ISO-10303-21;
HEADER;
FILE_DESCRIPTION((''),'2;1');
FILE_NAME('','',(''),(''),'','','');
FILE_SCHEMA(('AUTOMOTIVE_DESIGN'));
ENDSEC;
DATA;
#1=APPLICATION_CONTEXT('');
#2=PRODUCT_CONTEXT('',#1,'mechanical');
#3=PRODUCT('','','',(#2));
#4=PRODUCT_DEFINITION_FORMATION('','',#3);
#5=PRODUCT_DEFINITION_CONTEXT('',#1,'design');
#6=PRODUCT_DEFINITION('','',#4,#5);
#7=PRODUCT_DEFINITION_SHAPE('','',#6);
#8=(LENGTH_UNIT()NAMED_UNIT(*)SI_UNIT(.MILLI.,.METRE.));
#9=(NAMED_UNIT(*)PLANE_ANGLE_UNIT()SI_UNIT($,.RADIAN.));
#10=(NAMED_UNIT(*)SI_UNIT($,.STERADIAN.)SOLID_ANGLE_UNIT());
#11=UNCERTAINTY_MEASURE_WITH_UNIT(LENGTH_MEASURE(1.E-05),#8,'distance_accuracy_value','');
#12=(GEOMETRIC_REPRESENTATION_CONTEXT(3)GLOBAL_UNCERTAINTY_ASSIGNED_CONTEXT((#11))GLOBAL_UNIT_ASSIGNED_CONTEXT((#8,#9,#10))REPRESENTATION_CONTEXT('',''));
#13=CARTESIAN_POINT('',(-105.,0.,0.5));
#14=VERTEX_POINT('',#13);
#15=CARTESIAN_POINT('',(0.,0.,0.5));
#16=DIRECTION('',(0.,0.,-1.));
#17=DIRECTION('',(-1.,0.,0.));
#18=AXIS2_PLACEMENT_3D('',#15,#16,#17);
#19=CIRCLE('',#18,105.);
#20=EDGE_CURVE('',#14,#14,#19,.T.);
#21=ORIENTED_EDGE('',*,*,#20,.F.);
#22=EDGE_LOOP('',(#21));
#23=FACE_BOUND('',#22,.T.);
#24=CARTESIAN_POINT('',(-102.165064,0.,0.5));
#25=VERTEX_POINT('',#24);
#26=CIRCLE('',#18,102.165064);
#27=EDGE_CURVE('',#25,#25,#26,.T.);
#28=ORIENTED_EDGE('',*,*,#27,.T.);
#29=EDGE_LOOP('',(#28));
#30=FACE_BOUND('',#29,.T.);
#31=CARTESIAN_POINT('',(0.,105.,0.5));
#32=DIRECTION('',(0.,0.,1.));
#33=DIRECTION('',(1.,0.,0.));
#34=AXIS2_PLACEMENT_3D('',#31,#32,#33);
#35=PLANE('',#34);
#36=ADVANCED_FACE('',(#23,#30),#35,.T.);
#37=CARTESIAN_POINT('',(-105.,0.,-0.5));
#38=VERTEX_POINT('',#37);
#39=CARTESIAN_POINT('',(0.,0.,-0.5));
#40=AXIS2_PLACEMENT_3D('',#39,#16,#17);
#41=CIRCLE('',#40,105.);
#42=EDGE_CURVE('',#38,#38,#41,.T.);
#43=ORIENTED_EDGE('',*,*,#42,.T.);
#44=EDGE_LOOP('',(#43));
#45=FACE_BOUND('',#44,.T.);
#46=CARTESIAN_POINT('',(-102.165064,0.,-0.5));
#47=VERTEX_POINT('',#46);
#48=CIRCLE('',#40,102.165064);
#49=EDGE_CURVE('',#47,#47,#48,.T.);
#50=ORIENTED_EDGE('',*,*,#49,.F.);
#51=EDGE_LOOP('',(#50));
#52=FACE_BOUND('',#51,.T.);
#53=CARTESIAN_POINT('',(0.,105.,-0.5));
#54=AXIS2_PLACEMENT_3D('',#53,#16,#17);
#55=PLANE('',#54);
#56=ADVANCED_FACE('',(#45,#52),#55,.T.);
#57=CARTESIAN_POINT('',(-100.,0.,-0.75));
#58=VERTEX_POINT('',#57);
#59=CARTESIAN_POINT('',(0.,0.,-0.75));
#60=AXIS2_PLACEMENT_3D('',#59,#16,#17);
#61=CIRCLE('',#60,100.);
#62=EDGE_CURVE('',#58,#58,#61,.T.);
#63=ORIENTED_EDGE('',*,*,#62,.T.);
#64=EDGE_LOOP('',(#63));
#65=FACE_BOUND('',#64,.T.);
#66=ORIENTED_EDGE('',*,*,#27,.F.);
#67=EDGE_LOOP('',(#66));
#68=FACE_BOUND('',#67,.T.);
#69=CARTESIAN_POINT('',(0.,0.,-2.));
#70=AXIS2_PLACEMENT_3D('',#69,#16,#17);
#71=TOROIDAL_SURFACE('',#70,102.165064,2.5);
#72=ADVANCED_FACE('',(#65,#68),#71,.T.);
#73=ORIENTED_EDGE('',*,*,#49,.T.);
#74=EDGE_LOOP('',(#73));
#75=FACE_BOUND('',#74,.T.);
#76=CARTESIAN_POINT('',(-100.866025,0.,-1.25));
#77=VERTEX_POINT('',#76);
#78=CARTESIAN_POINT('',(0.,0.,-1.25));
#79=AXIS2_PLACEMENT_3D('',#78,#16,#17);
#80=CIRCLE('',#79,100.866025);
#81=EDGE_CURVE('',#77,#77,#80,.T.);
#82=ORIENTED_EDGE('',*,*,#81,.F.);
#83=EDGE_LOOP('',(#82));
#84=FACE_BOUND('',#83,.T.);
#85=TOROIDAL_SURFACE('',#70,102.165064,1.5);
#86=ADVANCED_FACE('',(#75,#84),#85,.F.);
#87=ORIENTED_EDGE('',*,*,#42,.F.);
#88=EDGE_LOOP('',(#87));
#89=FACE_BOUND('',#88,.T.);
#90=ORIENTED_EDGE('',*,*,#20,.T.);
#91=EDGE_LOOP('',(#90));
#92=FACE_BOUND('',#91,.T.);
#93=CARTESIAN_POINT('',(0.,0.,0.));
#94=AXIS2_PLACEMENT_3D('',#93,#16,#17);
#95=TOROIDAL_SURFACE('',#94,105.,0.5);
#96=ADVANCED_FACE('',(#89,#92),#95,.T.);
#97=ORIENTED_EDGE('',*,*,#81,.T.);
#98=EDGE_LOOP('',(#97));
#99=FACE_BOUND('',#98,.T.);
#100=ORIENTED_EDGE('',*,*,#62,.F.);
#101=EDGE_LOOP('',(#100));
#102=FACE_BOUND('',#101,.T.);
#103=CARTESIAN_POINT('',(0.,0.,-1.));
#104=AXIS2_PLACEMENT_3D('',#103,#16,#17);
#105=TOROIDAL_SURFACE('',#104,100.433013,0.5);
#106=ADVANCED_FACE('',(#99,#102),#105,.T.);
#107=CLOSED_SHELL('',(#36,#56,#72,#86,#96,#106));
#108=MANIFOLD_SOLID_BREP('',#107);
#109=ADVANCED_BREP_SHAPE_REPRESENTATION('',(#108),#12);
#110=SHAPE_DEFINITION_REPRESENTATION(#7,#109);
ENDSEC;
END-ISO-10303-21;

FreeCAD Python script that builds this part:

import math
import FreeCAD as App
import Part
import Sketcher

V = App.Vector
Q = App.Units.Quantity

doc = App.newDocument("Part")
params = doc.addObject("Spreadsheet::Sheet", "Params")
for row, (alias, value) in enumerate([
    ("sketch1_radius", "0.5 mm"),
    ("sketch1_radius2", "2.5 mm"),
    ("revolution_angle", "360 deg"),
], start=1):
    params.set(f"A{row}", alias)
    params.set(f"B{row}", "=" + value)
    params.setAlias(f"B{row}", alias)

body = doc.addObject("PartDesign::Body", "Body")

sketch1 = doc.addObject("Sketcher::SketchObject", "Sketch")
body.addObject(sketch1)
sketch1.AttachmentSupport = (doc.YZ_Plane, [""])
sketch1.MapMode = "FlatFace"
sketch1.addGeometry([
    Part.LineSegment(V(102.2, -0.5, 0), V(105, -0.5, 0)),
    Part.ArcOfCircle(Part.Circle(V(105, 0, 0), V(0, 0, 1), 0.5), math.radians(-90), math.radians(90)),
    Part.LineSegment(V(105, 0.5, 0), V(102.2, 0.5, 0)),
    Part.ArcOfCircle(Part.Circle(V(102.2, -2, 0), V(0, 0, 1), 2.5), math.radians(90), math.radians(150)),
    Part.ArcOfCircle(Part.Circle(V(100.4, -1, 0), V(0, 0, 1), 0.5), math.radians(150), math.radians(330)),
    Part.ArcOfCircle(Part.Circle(V(102.2, -2, 0), V(0, 0, 1), 1.5), math.radians(90), math.radians(150)),
], False)
sketch1.addConstraint([
    Sketcher.Constraint("Tangent", 0, 2, 1, 1),
    Sketcher.Constraint("Tangent", 1, 2, 2, 1),
    Sketcher.Constraint("Tangent", 2, 2, 3, 1),
    Sketcher.Constraint("Tangent", 3, 2, 4, 1),
    Sketcher.Constraint("Tangent", 4, 2, 5, 2),
    Sketcher.Constraint("Tangent", 5, 1, 0, 1),
    Sketcher.Constraint("Horizontal", 0),
    Sketcher.Constraint("Horizontal", 2),
    Sketcher.Constraint("Coincident", 5, 3, 3, 3),
    Sketcher.Constraint("PointOnObject", 1, 3, -1),
    Sketcher.Constraint("Radius", 1, Q("0.5 mm")),
    Sketcher.Constraint("Radius", 3, Q("2.5 mm")),
    Sketcher.Constraint("DistanceX", -1, 1, 1, 3, Q("105 mm")),
    Sketcher.Constraint("DistanceY", 4, 3, -1, 1, Q("1 mm")),
    Sketcher.Constraint("DistanceX", -1, 1, 3, 2, Q("100 mm")),
])
sketch1.setExpression("Constraints[10]", "Params.sketch1_radius")
sketch1.setExpression("Constraints[11]", "Params.sketch1_radius2")
revolution = doc.addObject("PartDesign::Revolution", "Revolution")
body.addObject(revolution)
revolution.Profile = sketch1
revolution.ReferenceAxis = (sketch1, ["V_Axis"])
revolution.setExpression("Angle", "Params.revolution_angle")

doc.recompute()
